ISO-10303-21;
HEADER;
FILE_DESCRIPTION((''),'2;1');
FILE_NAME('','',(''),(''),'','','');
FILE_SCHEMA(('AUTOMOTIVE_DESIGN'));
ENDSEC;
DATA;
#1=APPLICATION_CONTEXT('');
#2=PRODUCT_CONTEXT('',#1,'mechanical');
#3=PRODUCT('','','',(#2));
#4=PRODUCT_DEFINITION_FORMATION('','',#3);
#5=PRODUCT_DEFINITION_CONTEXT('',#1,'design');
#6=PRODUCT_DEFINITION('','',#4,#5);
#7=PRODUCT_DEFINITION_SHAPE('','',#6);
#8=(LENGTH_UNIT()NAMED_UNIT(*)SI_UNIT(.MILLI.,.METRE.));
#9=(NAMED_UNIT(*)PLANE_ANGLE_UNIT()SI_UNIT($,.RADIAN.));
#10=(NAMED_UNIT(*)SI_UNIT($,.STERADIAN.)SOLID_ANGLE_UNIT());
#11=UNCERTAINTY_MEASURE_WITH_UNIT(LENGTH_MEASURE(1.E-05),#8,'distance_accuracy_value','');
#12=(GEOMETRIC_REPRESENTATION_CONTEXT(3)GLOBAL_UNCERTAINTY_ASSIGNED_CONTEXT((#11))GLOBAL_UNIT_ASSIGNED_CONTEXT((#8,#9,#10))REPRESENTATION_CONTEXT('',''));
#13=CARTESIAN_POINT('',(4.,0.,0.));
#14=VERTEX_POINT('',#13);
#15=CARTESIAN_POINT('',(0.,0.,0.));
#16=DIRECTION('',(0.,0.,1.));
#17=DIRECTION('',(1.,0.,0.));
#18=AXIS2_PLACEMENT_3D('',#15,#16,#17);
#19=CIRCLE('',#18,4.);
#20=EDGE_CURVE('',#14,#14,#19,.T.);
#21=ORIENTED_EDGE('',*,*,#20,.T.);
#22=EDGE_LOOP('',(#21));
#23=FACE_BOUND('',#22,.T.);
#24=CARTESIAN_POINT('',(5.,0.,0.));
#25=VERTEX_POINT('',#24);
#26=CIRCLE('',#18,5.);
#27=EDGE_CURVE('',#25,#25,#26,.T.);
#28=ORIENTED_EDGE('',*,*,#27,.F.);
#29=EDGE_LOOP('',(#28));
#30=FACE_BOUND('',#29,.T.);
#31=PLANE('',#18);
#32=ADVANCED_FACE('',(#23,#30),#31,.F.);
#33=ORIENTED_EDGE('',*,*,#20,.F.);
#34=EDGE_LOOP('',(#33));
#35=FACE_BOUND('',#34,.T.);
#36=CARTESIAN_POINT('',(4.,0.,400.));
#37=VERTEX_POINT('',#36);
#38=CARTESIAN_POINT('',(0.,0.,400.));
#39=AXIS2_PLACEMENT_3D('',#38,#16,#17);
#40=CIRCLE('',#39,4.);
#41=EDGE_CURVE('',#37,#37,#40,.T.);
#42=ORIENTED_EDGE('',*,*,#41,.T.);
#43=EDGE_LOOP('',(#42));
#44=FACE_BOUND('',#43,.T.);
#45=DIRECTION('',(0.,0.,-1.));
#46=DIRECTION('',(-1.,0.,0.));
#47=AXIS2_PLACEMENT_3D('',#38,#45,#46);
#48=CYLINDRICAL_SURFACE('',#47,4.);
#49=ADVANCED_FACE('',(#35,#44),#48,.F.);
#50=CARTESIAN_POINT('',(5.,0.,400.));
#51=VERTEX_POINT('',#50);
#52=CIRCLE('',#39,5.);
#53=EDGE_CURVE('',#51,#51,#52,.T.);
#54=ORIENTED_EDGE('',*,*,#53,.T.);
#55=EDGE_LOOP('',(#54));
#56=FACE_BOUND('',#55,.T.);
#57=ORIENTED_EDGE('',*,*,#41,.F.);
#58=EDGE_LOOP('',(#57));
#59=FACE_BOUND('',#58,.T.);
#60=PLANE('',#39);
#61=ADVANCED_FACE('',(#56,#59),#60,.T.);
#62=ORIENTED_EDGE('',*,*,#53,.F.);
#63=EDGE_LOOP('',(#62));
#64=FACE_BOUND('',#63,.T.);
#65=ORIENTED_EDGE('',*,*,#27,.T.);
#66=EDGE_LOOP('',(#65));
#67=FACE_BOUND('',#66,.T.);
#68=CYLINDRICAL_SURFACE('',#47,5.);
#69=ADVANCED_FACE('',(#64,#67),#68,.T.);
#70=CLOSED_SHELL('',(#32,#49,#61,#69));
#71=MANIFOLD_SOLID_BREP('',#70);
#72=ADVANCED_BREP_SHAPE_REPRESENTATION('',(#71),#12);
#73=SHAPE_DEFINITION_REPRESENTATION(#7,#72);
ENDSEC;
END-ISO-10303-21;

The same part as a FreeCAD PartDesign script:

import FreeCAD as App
import Part
import Sketcher
Q = App.Units.Quantity

doc = App.newDocument("Part")
body = doc.addObject("PartDesign::Body", "Body")

# Sketch on XY plane
sketch1 = body.newObject("Sketcher::SketchObject", "Sketch")
sketch1.AttachmentSupport = (doc.getObject("XY_Plane"), [""])
sketch1.MapMode = "FlatFace"
sketch1.addGeometry(Part.Circle(App.Vector(0, 0, 0), App.Vector(0, 0, 1), 5), False)
sketch1.addGeometry(Part.Circle(App.Vector(0, 0, 0), App.Vector(0, 0, 1), 4), False)
sketch1.addConstraint(Sketcher.Constraint("Coincident", 0, 3, -1, 1))
sketch1.addConstraint(Sketcher.Constraint("Coincident", 1, 3, -1, 1))
sketch1.addConstraint(Sketcher.Constraint("Diameter", 0, Q("10 mm")))
sketch1.addConstraint(Sketcher.Constraint("Diameter", 1, Q("8 mm")))
pad1 = body.newObject("PartDesign::Pad", "Pad")
pad1.Profile = sketch1
pad1.Length = 400

doc.recompute()
